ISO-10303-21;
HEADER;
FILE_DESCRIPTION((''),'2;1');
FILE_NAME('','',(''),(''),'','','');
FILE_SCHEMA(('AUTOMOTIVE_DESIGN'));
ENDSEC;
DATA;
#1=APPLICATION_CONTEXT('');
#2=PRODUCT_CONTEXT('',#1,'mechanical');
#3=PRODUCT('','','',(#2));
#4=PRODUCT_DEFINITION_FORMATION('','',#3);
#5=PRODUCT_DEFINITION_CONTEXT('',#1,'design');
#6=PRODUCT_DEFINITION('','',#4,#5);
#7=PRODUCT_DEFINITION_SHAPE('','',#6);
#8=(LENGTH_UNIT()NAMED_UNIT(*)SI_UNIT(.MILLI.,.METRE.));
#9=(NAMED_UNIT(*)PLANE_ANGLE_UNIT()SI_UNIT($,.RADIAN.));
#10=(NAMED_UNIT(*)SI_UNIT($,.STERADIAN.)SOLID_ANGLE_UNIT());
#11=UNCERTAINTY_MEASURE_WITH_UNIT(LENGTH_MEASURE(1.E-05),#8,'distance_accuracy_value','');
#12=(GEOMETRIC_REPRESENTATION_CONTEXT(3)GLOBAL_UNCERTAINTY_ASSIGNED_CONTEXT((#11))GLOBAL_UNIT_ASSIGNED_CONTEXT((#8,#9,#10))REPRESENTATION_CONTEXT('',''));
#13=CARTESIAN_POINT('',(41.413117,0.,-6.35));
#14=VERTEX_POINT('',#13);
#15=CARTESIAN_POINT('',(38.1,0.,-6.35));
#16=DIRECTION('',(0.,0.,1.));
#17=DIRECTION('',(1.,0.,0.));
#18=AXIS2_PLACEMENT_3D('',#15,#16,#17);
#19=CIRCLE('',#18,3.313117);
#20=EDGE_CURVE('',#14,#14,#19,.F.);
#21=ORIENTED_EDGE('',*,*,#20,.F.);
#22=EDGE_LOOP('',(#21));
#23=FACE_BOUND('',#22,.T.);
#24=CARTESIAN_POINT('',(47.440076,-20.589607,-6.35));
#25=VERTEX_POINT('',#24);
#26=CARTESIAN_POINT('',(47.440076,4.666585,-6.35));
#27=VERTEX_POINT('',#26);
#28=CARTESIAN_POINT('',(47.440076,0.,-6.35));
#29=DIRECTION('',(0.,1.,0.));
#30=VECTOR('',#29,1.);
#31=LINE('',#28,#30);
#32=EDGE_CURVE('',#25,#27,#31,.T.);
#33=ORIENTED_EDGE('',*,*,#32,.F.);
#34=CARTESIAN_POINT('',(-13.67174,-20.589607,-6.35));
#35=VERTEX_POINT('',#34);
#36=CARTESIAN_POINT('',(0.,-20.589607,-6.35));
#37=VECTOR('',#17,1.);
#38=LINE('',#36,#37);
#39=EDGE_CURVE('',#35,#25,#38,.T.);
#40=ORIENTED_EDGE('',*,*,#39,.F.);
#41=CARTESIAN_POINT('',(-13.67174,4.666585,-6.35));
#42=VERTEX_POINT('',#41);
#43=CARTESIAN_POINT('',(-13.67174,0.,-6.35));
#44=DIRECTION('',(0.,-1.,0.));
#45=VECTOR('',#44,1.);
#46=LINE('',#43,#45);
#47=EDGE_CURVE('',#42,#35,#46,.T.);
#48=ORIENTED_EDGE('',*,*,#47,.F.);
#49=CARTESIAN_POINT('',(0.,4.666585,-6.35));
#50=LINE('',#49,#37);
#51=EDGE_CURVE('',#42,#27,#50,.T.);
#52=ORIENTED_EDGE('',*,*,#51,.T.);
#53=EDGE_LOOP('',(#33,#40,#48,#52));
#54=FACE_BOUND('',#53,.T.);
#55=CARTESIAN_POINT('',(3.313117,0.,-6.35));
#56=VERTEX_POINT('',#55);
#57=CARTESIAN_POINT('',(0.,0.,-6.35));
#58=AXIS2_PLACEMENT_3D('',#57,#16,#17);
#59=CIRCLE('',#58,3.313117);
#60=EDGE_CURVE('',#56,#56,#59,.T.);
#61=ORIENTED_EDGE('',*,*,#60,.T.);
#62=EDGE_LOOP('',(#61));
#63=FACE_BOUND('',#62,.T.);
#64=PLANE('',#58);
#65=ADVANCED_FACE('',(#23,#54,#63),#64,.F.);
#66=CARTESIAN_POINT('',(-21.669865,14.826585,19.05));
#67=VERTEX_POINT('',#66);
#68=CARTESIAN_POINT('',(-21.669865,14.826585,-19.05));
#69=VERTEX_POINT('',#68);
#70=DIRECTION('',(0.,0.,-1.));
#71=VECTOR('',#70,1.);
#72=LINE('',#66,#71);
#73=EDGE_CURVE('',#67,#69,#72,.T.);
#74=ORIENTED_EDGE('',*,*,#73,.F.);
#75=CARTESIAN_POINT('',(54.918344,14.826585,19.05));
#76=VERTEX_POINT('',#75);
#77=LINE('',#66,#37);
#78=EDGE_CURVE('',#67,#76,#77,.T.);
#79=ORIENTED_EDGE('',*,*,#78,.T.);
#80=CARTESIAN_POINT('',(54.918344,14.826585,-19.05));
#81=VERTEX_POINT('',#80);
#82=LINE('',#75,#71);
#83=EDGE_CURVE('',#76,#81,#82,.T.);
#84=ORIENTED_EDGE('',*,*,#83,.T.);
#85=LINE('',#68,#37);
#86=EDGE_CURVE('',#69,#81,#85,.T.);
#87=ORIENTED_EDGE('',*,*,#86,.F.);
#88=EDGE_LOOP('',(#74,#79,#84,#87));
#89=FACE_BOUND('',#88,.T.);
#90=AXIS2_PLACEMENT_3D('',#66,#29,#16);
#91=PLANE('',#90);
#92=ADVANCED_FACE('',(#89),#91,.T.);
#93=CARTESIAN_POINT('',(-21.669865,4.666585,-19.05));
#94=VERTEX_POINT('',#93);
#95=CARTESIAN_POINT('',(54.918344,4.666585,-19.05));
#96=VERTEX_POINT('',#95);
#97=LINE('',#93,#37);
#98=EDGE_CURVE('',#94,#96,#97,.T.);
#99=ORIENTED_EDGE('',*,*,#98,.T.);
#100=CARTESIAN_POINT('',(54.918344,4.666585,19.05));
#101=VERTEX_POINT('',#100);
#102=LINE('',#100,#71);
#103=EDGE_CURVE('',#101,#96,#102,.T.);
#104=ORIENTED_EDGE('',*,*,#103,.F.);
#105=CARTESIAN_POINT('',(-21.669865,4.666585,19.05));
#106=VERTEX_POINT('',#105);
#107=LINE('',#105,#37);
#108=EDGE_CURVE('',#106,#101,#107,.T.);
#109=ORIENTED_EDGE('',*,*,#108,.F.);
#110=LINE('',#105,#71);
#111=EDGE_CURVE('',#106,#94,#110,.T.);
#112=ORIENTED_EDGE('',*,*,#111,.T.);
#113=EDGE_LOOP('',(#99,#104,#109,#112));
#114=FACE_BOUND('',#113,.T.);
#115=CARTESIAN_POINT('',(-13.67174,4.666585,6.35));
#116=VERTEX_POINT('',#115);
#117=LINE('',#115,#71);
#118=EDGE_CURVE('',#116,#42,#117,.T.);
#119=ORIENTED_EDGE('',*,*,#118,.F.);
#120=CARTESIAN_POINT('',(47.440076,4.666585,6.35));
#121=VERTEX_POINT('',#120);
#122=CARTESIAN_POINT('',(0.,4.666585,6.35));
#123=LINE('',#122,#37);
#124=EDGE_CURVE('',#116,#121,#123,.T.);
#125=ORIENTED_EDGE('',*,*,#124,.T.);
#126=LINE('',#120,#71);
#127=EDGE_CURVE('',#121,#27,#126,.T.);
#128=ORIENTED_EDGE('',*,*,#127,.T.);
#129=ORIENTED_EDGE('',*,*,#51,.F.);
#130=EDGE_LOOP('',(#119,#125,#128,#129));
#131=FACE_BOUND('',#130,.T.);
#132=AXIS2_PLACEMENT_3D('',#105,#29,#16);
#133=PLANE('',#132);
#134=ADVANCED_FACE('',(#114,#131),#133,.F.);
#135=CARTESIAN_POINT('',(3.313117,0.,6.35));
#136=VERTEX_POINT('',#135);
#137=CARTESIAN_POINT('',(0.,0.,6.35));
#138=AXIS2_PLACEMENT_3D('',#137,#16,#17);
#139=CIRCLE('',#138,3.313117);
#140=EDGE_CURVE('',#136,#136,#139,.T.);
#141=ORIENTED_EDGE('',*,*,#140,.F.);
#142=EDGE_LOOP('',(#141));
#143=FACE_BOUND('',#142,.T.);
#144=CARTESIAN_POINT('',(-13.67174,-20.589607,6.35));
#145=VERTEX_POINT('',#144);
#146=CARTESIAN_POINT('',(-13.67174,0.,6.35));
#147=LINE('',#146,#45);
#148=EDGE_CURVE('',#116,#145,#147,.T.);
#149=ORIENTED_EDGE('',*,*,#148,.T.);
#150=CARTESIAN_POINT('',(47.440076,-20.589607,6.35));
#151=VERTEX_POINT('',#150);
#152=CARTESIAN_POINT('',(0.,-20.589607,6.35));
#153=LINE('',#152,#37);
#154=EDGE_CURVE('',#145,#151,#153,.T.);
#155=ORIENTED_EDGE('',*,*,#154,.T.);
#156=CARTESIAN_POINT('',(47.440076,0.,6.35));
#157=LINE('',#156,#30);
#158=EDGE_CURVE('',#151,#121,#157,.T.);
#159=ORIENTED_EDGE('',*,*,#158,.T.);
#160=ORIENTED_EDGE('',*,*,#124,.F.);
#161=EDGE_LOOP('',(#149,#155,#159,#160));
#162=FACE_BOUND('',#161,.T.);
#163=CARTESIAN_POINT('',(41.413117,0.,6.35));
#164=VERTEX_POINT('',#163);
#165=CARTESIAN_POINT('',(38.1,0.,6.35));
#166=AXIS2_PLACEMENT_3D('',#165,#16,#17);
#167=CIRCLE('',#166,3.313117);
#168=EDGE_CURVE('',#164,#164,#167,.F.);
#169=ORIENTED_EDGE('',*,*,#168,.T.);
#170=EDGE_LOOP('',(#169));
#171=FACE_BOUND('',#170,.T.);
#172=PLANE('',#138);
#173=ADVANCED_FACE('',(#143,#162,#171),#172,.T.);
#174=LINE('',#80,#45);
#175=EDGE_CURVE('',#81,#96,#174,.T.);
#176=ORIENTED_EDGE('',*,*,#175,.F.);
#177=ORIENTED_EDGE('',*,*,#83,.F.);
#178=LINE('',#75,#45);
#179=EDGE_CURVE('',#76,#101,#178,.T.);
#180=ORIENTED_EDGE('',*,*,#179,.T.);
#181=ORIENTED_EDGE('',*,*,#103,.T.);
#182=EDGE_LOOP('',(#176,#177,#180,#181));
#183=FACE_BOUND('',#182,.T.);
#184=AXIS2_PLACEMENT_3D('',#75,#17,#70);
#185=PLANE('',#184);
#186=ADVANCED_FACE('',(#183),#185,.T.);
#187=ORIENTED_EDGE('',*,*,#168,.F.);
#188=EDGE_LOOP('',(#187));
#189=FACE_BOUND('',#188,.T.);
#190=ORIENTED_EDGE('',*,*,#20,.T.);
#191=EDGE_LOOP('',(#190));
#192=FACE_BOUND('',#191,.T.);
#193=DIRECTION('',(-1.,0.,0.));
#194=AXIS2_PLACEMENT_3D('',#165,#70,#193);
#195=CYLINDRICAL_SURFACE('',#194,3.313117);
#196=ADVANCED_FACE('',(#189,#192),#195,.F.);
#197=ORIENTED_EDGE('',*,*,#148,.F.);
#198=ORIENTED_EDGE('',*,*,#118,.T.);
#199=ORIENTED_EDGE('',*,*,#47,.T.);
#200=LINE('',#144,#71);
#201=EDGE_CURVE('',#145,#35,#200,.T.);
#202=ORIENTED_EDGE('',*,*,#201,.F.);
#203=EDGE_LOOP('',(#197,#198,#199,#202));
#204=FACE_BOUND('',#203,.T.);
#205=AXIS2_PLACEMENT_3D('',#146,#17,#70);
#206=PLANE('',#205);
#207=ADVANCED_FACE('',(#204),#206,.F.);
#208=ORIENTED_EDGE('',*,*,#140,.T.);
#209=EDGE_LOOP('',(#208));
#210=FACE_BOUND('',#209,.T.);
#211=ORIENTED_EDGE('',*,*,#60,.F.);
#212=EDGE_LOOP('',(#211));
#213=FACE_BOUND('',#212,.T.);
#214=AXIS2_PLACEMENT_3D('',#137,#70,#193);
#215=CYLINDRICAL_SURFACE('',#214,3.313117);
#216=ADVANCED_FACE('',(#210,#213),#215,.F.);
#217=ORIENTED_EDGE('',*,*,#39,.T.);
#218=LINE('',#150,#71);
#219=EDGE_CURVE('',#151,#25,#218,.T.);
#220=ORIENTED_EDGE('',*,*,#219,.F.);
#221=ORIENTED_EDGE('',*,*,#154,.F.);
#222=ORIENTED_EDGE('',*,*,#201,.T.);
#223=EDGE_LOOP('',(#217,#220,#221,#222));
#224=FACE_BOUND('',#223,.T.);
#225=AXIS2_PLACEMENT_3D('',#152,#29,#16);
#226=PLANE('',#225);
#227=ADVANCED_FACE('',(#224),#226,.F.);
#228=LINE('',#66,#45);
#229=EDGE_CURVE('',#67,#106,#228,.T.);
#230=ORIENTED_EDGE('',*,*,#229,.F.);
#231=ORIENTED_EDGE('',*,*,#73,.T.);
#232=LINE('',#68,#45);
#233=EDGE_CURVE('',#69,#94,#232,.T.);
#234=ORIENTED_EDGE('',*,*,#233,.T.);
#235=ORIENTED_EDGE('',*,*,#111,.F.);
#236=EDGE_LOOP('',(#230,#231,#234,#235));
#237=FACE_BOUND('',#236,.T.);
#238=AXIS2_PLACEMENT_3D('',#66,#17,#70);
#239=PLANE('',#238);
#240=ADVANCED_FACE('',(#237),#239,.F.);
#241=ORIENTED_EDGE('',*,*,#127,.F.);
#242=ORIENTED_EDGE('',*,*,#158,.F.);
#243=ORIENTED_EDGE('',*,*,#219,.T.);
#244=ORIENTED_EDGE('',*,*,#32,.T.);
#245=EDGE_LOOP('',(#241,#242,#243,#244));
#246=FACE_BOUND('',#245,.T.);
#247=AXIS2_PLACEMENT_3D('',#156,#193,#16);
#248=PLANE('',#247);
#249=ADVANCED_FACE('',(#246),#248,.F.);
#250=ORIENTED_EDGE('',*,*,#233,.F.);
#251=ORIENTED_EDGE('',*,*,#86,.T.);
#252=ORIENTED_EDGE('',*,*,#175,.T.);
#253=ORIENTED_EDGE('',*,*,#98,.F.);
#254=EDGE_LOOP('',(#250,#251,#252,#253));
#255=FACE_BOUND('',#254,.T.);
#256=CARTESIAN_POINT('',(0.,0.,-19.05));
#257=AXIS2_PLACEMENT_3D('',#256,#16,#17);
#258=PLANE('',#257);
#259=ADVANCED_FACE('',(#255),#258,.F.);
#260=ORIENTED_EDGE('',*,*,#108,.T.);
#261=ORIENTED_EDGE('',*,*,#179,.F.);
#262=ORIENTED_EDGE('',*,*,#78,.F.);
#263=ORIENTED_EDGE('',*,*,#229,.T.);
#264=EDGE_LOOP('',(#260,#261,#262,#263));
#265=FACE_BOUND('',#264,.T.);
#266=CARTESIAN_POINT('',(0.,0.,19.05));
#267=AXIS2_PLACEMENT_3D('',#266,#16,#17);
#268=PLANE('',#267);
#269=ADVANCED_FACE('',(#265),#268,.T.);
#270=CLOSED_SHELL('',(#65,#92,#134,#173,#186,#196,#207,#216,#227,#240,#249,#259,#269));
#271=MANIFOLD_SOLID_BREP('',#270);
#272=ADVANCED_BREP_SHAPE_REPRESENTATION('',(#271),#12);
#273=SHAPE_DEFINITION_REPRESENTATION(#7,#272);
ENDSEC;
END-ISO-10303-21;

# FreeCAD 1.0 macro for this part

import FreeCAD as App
import Part
import Sketcher
from FreeCAD import Vector
Q = App.Units.Quantity


def add_polygon(sketch, points):
    """Adds a closed chain of lines whose ends are joined by coincident constraints."""
    first, n = sketch.GeometryCount, len(points)
    for a, b in zip(points, points[1:] + points[:1]):
        sketch.addGeometry(Part.LineSegment(App.Vector(*a, 0), App.Vector(*b, 0)), False)
    for i in range(n):
        sketch.addConstraint(Sketcher.Constraint("Coincident", first + i, 2, first + (i + 1) % n, 1))

doc = App.newDocument("Part")
params = doc.addObject("Spreadsheet::Sheet", "Params")
for row, (alias, value) in enumerate([
    ("pad1_length", "0.5 in"),
    ("sketch2_height", "0.4 in"),
    ("pad2_length", "1.5 in"),
], start=1):
    params.set(f"A{row}", alias)
    params.set(f"B{row}", "=" + value)
    params.setAlias(f"B{row}", alias)

body = doc.addObject("PartDesign::Body", "Body")

# Sketch on XY plane
sketch1 = doc.addObject("Sketcher::SketchObject", "Sketch")
body.addObject(sketch1)
sketch1.AttachmentSupport = (doc.XY_Plane, [""])
sketch1.MapMode = "FlatFace"
add_polygon(sketch1, [(-13.7, 4.7), (-13.7, -20.6), (47.4, -20.6), (47.4, 4.7)])  # lines 0-3
sketch1.addGeometry(Part.Circle(Vector(0, 0, 0), Vector(0, 0, 1), 3.3), False)  # 4
sketch1.addGeometry(Part.Circle(Vector(38.1, 0, 0), Vector(0, 0, 1), 3.3), False)  # 5
sketch1.addConstraint(Sketcher.Constraint("Vertical", 0))
sketch1.addConstraint(Sketcher.Constraint("Horizontal", 1))
sketch1.addConstraint(Sketcher.Constraint("Vertical", 2))
sketch1.addConstraint(Sketcher.Constraint("Horizontal", 3))
sketch1.addConstraint(Sketcher.Constraint("Coincident", 4, 3, -1, 1))
sketch1.addConstraint(Sketcher.Constraint("Equal", 4, 5))
sketch1.addConstraint(Sketcher.Constraint("PointOnObject", 5, 3, -1))
sketch1.addConstraint(Sketcher.Constraint("DistanceX", -1, 1, 5, 3, Q("1.5 in")))
sketch1.addConstraint(Sketcher.Constraint("Diameter", 4, Q("6.626233 mm")))
sketch1.addConstraint(Sketcher.Constraint("DistanceX", 1, 1, 1, 2, Q("61.111815 mm")))
sketch1.addConstraint(Sketcher.Constraint("DistanceY", 0, 2, 0, 1, Q("25.256192 mm")))
sketch1.addConstraint(Sketcher.Constraint("DistanceX", 0, 2, -1, 1, Q("13.67174 mm")))
sketch1.addConstraint(Sketcher.Constraint("DistanceY", 0, 2, -1, 1, Q("20.589607 mm")))
pad1 = doc.addObject("PartDesign::Pad", "Pad")
body.addObject(pad1)
pad1.Profile = sketch1
pad1.setExpression("Length", "Params.pad1_length")
pad1.Midplane = True

# Sketch on XY plane
sketch2 = doc.addObject("Sketcher::SketchObject", "Sketch001")
body.addObject(sketch2)
sketch2.AttachmentSupport = (doc.XY_Plane, [""])
sketch2.MapMode = "FlatFace"
add_polygon(sketch2, [(-22, 15), (-22, 5), (55, 5), (55, 15)])  # lines 0-3
sketch2.addConstraint(Sketcher.Constraint("Vertical", 0))
sketch2.addConstraint(Sketcher.Constraint("Horizontal", 1))
sketch2.addConstraint(Sketcher.Constraint("Vertical", 2))
sketch2.addConstraint(Sketcher.Constraint("Horizontal", 3))
sketch2.addConstraint(Sketcher.Constraint("DistanceY", 0, 2, 0, 1, Q("0.4 in")))
sketch2.addConstraint(Sketcher.Constraint("DistanceX", 1, 1, 1, 2, Q("76.588209 mm")))
sketch2.addConstraint(Sketcher.Constraint("DistanceX", 0, 2, -1, 1, Q("21.669865 mm")))
sketch2.addConstraint(Sketcher.Constraint("DistanceY", -1, 1, 0, 2, Q("4.666585 mm")))
sketch2.setExpression("Constraints[8]", "Params.sketch2_height")
pad2 = doc.addObject("PartDesign::Pad", "Pad001")
body.addObject(pad2)
pad2.Profile = sketch2
pad2.setExpression("Length", "Params.pad2_length")
pad2.Midplane = True

doc.recompute()
